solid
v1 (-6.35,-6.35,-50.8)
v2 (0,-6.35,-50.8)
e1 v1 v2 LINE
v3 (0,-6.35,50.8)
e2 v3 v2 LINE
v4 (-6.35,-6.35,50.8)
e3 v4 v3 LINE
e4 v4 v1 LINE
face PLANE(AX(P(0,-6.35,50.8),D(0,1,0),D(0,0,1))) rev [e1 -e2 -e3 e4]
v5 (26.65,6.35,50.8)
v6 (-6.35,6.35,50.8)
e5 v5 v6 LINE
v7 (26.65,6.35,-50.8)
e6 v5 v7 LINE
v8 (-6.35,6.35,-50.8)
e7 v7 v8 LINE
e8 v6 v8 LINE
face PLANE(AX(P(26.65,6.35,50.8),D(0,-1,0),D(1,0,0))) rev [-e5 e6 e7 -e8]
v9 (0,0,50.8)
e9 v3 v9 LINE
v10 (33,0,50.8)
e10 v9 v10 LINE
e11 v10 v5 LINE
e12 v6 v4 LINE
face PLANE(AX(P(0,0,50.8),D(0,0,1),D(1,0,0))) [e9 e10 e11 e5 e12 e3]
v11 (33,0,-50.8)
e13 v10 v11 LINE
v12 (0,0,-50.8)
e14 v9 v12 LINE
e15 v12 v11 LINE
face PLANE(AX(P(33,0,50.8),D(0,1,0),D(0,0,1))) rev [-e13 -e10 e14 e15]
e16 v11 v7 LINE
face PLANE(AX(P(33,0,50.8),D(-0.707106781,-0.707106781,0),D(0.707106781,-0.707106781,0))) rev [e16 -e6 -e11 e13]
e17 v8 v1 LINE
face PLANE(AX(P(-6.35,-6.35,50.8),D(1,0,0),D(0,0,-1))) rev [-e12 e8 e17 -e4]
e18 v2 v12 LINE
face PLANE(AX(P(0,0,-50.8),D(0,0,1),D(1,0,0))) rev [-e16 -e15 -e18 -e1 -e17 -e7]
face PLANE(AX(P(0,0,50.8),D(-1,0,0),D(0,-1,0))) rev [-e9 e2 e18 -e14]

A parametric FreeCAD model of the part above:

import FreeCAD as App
import Part
import Sketcher
Q = App.Units.Quantity

doc = App.newDocument("Part")
body = doc.addObject("PartDesign::Body", "Body")

# Sketch on XY plane
sketch1 = body.newObject("Sketcher::SketchObject", "Sketch")
sketch1.AttachmentSupport = (doc.getObject("XY_Plane"), [""])
sketch1.MapMode = "FlatFace"
sketch1.addGeometry([
    Part.LineSegment(App.Vector(0, -6.35, 0), App.Vector(0, 0, 0)),  # 0
    Part.LineSegment(App.Vector(0, 0, 0), App.Vector(33, 0, 0)),  # 1
    Part.LineSegment(App.Vector(33, 0, 0), App.Vector(26.65, 6.35, 0)),  # 2
    Part.LineSegment(App.Vector(26.65, 6.35, 0), App.Vector(-6.35, 6.35, 0)),  # 3
    Part.LineSegment(App.Vector(-6.35, 6.35, 0), App.Vector(-6.35, -6.35, 0)),  # 4
    Part.LineSegment(App.Vector(-6.35, -6.35, 0), App.Vector(0, -6.35, 0)),  # 5
], False)
sketch1.addConstraint([
    Sketcher.Constraint("Coincident", 0, 2, 1, 1),
    Sketcher.Constraint("Coincident", 1, 2, 2, 1),
    Sketcher.Constraint("Coincident", 2, 2, 3, 1),
    Sketcher.Constraint("Coincident", 3, 2, 4, 1),
    Sketcher.Constraint("Coincident", 4, 2, 5, 1),
    Sketcher.Constraint("Coincident", 5, 2, 0, 1),
    Sketcher.Constraint("Vertical", 0),
    Sketcher.Constraint("Horizontal", 1),
    Sketcher.Constraint("Horizontal", 3),
    Sketcher.Constraint("Vertical", 4),
    Sketcher.Constraint("Horizontal", 5),
    Sketcher.Constraint("Coincident", 0, 2, -1, 1),
    Sketcher.Constraint("Equal", 1, 3),
    Sketcher.Constraint("Equal", 5, 0),
    Sketcher.Constraint("DistanceY", 4, 2, 4, 1, Q("0.5 in")),
    Sketcher.Constraint("Angle", 2, Q("135 deg")),
    Sketcher.Constraint("DistanceX", 1, 1, 1, 2, Q("33 mm")),
])
pad1 = body.newObject("PartDesign::Pad", "Pad")
pad1.Profile = sketch1
pad1.Length = Q("4 in")
pad1.Midplane = True

doc.recompute()
